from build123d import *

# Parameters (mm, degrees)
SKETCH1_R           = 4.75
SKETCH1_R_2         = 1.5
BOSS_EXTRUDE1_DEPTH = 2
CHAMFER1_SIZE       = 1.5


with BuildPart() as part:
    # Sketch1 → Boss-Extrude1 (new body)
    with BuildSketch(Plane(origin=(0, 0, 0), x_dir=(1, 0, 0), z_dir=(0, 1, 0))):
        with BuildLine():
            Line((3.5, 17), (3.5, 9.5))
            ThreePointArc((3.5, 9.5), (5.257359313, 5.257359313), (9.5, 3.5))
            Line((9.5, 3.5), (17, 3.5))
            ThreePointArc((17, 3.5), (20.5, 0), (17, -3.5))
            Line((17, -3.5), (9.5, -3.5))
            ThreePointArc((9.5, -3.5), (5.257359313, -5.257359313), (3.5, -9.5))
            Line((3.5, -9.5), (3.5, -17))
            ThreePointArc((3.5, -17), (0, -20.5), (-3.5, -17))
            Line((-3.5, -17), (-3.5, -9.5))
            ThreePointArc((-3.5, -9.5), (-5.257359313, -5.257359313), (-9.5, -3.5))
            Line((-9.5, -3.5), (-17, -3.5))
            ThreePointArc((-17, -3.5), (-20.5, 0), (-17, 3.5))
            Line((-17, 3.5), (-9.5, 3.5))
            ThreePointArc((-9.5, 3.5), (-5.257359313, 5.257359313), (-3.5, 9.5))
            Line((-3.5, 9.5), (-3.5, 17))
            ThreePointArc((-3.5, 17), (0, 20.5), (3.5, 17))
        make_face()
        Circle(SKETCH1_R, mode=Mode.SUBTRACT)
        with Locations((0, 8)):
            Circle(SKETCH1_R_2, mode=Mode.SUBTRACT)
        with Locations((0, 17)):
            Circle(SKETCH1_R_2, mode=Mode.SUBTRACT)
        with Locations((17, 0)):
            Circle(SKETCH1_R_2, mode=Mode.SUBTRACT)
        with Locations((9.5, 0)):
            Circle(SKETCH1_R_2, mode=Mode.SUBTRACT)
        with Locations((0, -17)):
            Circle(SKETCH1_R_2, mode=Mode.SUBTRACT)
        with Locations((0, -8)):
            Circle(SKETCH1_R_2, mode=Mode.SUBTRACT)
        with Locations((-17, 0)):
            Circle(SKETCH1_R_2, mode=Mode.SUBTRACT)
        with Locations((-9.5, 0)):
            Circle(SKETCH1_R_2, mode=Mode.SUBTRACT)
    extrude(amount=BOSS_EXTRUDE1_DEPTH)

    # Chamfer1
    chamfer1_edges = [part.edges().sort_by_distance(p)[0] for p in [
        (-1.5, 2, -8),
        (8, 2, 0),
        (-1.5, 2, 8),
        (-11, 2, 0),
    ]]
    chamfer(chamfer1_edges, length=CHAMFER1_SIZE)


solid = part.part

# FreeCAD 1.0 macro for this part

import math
import FreeCAD as App
import Part
import Sketcher

V = App.Vector


def edges_at(feature, points):
    """Names of the edges that pass closest to the given points."""
    edges = feature.Shape.Edges
    near = lambda p: min(range(len(edges)), key=lambda i: edges[i].distToShape(Part.Vertex(*p))[0])
    return sorted({f"Edge{near(p) + 1}" for p in points})

doc = App.newDocument("Part")
params = doc.addObject("Spreadsheet::Sheet", "Params")
for row, (alias, value) in enumerate([
    ("sketch1_diameter", "3 mm"),
    ("sketch1_radius", "6 mm"),
    ("sketch1_diameter2", "9.5 mm"),
    ("sketch1_radius2", "3.5 mm"),
    ("sketch1_width", "7.5 mm"),
    ("pad1_length", "2 mm"),
    ("chamfer_size", "1.5 mm"),
], start=1):
    params.set(f"A{row}", alias)
    params.set(f"B{row}", "=" + value)
    params.setAlias(f"B{row}", alias)

body = doc.addObject("PartDesign::Body", "Body")

sketch1 = body.newObject("Sketcher::SketchObject", "Sketch")
sketch1.AttachmentSupport = (doc.getObject("XZ_Plane"), [""])
sketch1.MapMode = "FlatFace"
sketch1.addGeometry(Part.LineSegment(V(3.5, -9.5, 0), V(3.5, -17, 0)), False)
sketch1.addGeometry(Part.ArcOfCircle(Part.Circle(V(0, -17, 0), V(0, 0, 1), 3.5), math.radians(180), math.radians(360)), False)
sketch1.addGeometry(Part.LineSegment(V(-3.5, -17, 0), V(-3.5, -9.5, 0)), False)
sketch1.addGeometry(Part.ArcOfCircle(Part.Circle(V(-9.5, -9.5, 0), V(0, 0, 1), 6), math.radians(0), math.radians(90)), False)
sketch1.addGeometry(Part.LineSegment(V(-9.5, -3.5, 0), V(-17, -3.5, 0)), False)
sketch1.addGeometry(Part.ArcOfCircle(Part.Circle(V(-17, 0, 0), V(0, 0, 1), 3.5), math.radians(90), math.radians(270)), False)
sketch1.addGeometry(Part.LineSegment(V(-17, 3.5, 0), V(-9.5, 3.5, 0)), False)
sketch1.addGeometry(Part.ArcOfCircle(Part.Circle(V(-9.5, 9.5, 0), V(0, 0, 1), 6), math.radians(-90), math.radians(0)), False)
sketch1.addGeometry(Part.LineSegment(V(-3.5, 9.5, 0), V(-3.5, 17, 0)), False)
sketch1.addGeometry(Part.ArcOfCircle(Part.Circle(V(0, 17, 0), V(0, 0, 1), 3.5), math.radians(0), math.radians(180)), False)
sketch1.addGeometry(Part.LineSegment(V(3.5, 17, 0), V(3.5, 9.5, 0)), False)
sketch1.addGeometry(Part.ArcOfCircle(Part.Circle(V(9.5, 9.5, 0), V(0, 0, 1), 6), math.radians(180), math.radians(270)), False)
sketch1.addGeometry(Part.LineSegment(V(9.5, 3.5, 0), V(17, 3.5, 0)), False)
sketch1.addGeometry(Part.ArcOfCircle(Part.Circle(V(17, 0, 0), V(0, 0, 1), 3.5), math.radians(-90), math.radians(90)), False)
sketch1.addGeometry(Part.LineSegment(V(17, -3.5, 0), V(9.5, -3.5, 0)), False)
sketch1.addGeometry(Part.ArcOfCircle(Part.Circle(V(9.5, -9.5, 0), V(0, 0, 1), 6), math.radians(90), math.radians(180)), False)
sketch1.addGeometry(Part.Circle(V(0, 17, 0), V(0, 0, 1), 1.5), False)
sketch1.addGeometry(Part.Circle(V(0, 8, 0), V(0, 0, 1), 1.5), False)
sketch1.addGeometry(Part.Circle(V(17, 0, 0), V(0, 0, 1), 1.5), False)
sketch1.addGeometry(Part.Circle(V(9.5, 0, 0), V(0, 0, 1), 1.5), False)
sketch1.addGeometry(Part.Circle(V(0, 0, 0), V(0, 0, 1), 4.8), False)
sketch1.addGeometry(Part.Circle(V(0, -8, 0), V(0, 0, 1), 1.5), False)
sketch1.addGeometry(Part.Circle(V(-9.5, 0, 0), V(0, 0, 1), 1.5), False)
sketch1.addGeometry(Part.Circle(V(-17, 0, 0), V(0, 0, 1), 1.5), False)
sketch1.addGeometry(Part.Circle(V(0, -17, 0), V(0, 0, 1), 1.5), False)
sketch1.addConstraint(Sketcher.Constraint("Tangent", 0, 2, 1, 2))
sketch1.addConstraint(Sketcher.Constraint("Tangent", 1, 1, 2, 1))
sketch1.addConstraint(Sketcher.Constraint("Tangent", 2, 2, 3, 1))
sketch1.addConstraint(Sketcher.Constraint("Tangent", 3, 2, 4, 1))
sketch1.addConstraint(Sketcher.Constraint("Tangent", 4, 2, 5, 2))
sketch1.addConstraint(Sketcher.Constraint("Tangent", 5, 1, 6, 1))
sketch1.addConstraint(Sketcher.Constraint("Tangent", 6, 2, 7, 1))
sketch1.addConstraint(Sketcher.Constraint("Tangent", 7, 2, 8, 1))
sketch1.addConstraint(Sketcher.Constraint("Tangent", 8, 2, 9, 2))
sketch1.addConstraint(Sketcher.Constraint("Tangent", 9, 1, 10, 1))
sketch1.addConstraint(Sketcher.Constraint("Tangent", 10, 2, 11, 1))
sketch1.addConstraint(Sketcher.Constraint("Tangent", 11, 2, 12, 1))
sketch1.addConstraint(Sketcher.Constraint("Tangent", 12, 2, 13, 2))
sketch1.addConstraint(Sketcher.Constraint("Tangent", 13, 1, 14, 1))
sketch1.addConstraint(Sketcher.Constraint("Tangent", 14, 2, 15, 1))
sketch1.addConstraint(Sketcher.Constraint("Tangent", 15, 2, 0, 1))
sketch1.addConstraint(Sketcher.Constraint("Vertical", 0))
sketch1.addConstraint(Sketcher.Constraint("Vertical", 2))
sketch1.addConstraint(Sketcher.Constraint("Horizontal", 4))
sketch1.addConstraint(Sketcher.Constraint("Horizontal", 6))
sketch1.addConstraint(Sketcher.Constraint("Vertical", 8))
sketch1.addConstraint(Sketcher.Constraint("Vertical", 10))
sketch1.addConstraint(Sketcher.Constraint("Horizontal", 12))
sketch1.addConstraint(Sketcher.Constraint("Horizontal", 14))
sketch1.addConstraint(Sketcher.Constraint("Coincident", 20, 3, -1, 1))
sketch1.addConstraint(Sketcher.Constraint("Coincident", 16, 3, 9, 3))
sketch1.addConstraint(Sketcher.Constraint("Coincident", 18, 3, 13, 3))
sketch1.addConstraint(Sketcher.Constraint("Coincident", 23, 3, 5, 3))
sketch1.addConstraint(Sketcher.Constraint("Coincident", 24, 3, 1, 3))
sketch1.addConstraint(Sketcher.Constraint("Equal", 1, 5))
sketch1.addConstraint(Sketcher.Constraint("Equal", 3, 7))
sketch1.addConstraint(Sketcher.Constraint("Equal", 5, 9))
sketch1.addConstraint(Sketcher.Constraint("Equal", 7, 11))
sketch1.addConstraint(Sketcher.Constraint("Equal", 9, 13))
sketch1.addConstraint(Sketcher.Constraint("Equal", 11, 15))
sketch1.addConstraint(Sketcher.Constraint("Equal", 16, 17))
sketch1.addConstraint(Sketcher.Constraint("Equal", 17, 18))
sketch1.addConstraint(Sketcher.Constraint("Equal", 18, 19))
sketch1.addConstraint(Sketcher.Constraint("Equal", 19, 21))
sketch1.addConstraint(Sketcher.Constraint("Equal", 21, 22))
sketch1.addConstraint(Sketcher.Constraint("Equal", 22, 23))
sketch1.addConstraint(Sketcher.Constraint("Equal", 23, 24))
sketch1.addConstraint(Sketcher.Constraint("Symmetric", 1, 3, 9, 3, -1, 1))
sketch1.addConstraint(Sketcher.Constraint("Symmetric", 5, 3, 13, 3, -1, 1))
sketch1.addConstraint(Sketcher.Constraint("Symmetric", 17, 3, 21, 3, -1, 1))
sketch1.addConstraint(Sketcher.Constraint("Symmetric", 19, 3, 22, 3, -1, 1))
sketch1.addConstraint(Sketcher.Constraint("Symmetric", 7, 3, 11, 3, -2))
sketch1.addConstraint(Sketcher.Constraint("PointOnObject", 17, 3, -2))
sketch1.addConstraint(Sketcher.Constraint("PointOnObject", 19, 3, -1))
sketch1.addConstraint(Sketcher.Constraint("Vertical", 15, 3, 19, 3))
sketch1.addConstraint(Sketcher.Constraint("Equal", 14, 0))
sketch1.addConstraint(Sketcher.Constraint("Diameter", 16, 3.0))
sketch1.addConstraint(Sketcher.Constraint("Radius", 3, 6.0))
sketch1.addConstraint(Sketcher.Constraint("Diameter", 20, 9.5))
sketch1.addConstraint(Sketcher.Constraint("Radius", 1, 3.5))
sketch1.addConstraint(Sketcher.Constraint("DistanceX", 4, 2, 4, 1, 7.5))
sketch1.addConstraint(Sketcher.Constraint("DistanceY", -1, 1, 17, 3, 8.0))
sketch1.setExpression("Constraints[51]", "Params.sketch1_diameter")
sketch1.setExpression("Constraints[52]", "Params.sketch1_radius")
sketch1.setExpression("Constraints[53]", "Params.sketch1_diameter2")
sketch1.setExpression("Constraints[54]", "Params.sketch1_radius2")
sketch1.setExpression("Constraints[55]", "Params.sketch1_width")
pad1 = body.newObject("PartDesign::Pad", "Pad")
pad1.Profile = sketch1
pad1.setExpression("Length", "Params.pad1_length")
pad1.Reversed = True
doc.recompute()

chamfer = body.newObject("PartDesign::Chamfer", "Chamfer")
chamfer.Base = (pad1, edges_at(pad1, [
    (-1.5, 2, -8),
    (8, 2, 0),
    (-1.5, 2, 8),
    (-11, 2, 0),
]))
chamfer.setExpression("Size", "Params.chamfer_size")

doc.recompute()
